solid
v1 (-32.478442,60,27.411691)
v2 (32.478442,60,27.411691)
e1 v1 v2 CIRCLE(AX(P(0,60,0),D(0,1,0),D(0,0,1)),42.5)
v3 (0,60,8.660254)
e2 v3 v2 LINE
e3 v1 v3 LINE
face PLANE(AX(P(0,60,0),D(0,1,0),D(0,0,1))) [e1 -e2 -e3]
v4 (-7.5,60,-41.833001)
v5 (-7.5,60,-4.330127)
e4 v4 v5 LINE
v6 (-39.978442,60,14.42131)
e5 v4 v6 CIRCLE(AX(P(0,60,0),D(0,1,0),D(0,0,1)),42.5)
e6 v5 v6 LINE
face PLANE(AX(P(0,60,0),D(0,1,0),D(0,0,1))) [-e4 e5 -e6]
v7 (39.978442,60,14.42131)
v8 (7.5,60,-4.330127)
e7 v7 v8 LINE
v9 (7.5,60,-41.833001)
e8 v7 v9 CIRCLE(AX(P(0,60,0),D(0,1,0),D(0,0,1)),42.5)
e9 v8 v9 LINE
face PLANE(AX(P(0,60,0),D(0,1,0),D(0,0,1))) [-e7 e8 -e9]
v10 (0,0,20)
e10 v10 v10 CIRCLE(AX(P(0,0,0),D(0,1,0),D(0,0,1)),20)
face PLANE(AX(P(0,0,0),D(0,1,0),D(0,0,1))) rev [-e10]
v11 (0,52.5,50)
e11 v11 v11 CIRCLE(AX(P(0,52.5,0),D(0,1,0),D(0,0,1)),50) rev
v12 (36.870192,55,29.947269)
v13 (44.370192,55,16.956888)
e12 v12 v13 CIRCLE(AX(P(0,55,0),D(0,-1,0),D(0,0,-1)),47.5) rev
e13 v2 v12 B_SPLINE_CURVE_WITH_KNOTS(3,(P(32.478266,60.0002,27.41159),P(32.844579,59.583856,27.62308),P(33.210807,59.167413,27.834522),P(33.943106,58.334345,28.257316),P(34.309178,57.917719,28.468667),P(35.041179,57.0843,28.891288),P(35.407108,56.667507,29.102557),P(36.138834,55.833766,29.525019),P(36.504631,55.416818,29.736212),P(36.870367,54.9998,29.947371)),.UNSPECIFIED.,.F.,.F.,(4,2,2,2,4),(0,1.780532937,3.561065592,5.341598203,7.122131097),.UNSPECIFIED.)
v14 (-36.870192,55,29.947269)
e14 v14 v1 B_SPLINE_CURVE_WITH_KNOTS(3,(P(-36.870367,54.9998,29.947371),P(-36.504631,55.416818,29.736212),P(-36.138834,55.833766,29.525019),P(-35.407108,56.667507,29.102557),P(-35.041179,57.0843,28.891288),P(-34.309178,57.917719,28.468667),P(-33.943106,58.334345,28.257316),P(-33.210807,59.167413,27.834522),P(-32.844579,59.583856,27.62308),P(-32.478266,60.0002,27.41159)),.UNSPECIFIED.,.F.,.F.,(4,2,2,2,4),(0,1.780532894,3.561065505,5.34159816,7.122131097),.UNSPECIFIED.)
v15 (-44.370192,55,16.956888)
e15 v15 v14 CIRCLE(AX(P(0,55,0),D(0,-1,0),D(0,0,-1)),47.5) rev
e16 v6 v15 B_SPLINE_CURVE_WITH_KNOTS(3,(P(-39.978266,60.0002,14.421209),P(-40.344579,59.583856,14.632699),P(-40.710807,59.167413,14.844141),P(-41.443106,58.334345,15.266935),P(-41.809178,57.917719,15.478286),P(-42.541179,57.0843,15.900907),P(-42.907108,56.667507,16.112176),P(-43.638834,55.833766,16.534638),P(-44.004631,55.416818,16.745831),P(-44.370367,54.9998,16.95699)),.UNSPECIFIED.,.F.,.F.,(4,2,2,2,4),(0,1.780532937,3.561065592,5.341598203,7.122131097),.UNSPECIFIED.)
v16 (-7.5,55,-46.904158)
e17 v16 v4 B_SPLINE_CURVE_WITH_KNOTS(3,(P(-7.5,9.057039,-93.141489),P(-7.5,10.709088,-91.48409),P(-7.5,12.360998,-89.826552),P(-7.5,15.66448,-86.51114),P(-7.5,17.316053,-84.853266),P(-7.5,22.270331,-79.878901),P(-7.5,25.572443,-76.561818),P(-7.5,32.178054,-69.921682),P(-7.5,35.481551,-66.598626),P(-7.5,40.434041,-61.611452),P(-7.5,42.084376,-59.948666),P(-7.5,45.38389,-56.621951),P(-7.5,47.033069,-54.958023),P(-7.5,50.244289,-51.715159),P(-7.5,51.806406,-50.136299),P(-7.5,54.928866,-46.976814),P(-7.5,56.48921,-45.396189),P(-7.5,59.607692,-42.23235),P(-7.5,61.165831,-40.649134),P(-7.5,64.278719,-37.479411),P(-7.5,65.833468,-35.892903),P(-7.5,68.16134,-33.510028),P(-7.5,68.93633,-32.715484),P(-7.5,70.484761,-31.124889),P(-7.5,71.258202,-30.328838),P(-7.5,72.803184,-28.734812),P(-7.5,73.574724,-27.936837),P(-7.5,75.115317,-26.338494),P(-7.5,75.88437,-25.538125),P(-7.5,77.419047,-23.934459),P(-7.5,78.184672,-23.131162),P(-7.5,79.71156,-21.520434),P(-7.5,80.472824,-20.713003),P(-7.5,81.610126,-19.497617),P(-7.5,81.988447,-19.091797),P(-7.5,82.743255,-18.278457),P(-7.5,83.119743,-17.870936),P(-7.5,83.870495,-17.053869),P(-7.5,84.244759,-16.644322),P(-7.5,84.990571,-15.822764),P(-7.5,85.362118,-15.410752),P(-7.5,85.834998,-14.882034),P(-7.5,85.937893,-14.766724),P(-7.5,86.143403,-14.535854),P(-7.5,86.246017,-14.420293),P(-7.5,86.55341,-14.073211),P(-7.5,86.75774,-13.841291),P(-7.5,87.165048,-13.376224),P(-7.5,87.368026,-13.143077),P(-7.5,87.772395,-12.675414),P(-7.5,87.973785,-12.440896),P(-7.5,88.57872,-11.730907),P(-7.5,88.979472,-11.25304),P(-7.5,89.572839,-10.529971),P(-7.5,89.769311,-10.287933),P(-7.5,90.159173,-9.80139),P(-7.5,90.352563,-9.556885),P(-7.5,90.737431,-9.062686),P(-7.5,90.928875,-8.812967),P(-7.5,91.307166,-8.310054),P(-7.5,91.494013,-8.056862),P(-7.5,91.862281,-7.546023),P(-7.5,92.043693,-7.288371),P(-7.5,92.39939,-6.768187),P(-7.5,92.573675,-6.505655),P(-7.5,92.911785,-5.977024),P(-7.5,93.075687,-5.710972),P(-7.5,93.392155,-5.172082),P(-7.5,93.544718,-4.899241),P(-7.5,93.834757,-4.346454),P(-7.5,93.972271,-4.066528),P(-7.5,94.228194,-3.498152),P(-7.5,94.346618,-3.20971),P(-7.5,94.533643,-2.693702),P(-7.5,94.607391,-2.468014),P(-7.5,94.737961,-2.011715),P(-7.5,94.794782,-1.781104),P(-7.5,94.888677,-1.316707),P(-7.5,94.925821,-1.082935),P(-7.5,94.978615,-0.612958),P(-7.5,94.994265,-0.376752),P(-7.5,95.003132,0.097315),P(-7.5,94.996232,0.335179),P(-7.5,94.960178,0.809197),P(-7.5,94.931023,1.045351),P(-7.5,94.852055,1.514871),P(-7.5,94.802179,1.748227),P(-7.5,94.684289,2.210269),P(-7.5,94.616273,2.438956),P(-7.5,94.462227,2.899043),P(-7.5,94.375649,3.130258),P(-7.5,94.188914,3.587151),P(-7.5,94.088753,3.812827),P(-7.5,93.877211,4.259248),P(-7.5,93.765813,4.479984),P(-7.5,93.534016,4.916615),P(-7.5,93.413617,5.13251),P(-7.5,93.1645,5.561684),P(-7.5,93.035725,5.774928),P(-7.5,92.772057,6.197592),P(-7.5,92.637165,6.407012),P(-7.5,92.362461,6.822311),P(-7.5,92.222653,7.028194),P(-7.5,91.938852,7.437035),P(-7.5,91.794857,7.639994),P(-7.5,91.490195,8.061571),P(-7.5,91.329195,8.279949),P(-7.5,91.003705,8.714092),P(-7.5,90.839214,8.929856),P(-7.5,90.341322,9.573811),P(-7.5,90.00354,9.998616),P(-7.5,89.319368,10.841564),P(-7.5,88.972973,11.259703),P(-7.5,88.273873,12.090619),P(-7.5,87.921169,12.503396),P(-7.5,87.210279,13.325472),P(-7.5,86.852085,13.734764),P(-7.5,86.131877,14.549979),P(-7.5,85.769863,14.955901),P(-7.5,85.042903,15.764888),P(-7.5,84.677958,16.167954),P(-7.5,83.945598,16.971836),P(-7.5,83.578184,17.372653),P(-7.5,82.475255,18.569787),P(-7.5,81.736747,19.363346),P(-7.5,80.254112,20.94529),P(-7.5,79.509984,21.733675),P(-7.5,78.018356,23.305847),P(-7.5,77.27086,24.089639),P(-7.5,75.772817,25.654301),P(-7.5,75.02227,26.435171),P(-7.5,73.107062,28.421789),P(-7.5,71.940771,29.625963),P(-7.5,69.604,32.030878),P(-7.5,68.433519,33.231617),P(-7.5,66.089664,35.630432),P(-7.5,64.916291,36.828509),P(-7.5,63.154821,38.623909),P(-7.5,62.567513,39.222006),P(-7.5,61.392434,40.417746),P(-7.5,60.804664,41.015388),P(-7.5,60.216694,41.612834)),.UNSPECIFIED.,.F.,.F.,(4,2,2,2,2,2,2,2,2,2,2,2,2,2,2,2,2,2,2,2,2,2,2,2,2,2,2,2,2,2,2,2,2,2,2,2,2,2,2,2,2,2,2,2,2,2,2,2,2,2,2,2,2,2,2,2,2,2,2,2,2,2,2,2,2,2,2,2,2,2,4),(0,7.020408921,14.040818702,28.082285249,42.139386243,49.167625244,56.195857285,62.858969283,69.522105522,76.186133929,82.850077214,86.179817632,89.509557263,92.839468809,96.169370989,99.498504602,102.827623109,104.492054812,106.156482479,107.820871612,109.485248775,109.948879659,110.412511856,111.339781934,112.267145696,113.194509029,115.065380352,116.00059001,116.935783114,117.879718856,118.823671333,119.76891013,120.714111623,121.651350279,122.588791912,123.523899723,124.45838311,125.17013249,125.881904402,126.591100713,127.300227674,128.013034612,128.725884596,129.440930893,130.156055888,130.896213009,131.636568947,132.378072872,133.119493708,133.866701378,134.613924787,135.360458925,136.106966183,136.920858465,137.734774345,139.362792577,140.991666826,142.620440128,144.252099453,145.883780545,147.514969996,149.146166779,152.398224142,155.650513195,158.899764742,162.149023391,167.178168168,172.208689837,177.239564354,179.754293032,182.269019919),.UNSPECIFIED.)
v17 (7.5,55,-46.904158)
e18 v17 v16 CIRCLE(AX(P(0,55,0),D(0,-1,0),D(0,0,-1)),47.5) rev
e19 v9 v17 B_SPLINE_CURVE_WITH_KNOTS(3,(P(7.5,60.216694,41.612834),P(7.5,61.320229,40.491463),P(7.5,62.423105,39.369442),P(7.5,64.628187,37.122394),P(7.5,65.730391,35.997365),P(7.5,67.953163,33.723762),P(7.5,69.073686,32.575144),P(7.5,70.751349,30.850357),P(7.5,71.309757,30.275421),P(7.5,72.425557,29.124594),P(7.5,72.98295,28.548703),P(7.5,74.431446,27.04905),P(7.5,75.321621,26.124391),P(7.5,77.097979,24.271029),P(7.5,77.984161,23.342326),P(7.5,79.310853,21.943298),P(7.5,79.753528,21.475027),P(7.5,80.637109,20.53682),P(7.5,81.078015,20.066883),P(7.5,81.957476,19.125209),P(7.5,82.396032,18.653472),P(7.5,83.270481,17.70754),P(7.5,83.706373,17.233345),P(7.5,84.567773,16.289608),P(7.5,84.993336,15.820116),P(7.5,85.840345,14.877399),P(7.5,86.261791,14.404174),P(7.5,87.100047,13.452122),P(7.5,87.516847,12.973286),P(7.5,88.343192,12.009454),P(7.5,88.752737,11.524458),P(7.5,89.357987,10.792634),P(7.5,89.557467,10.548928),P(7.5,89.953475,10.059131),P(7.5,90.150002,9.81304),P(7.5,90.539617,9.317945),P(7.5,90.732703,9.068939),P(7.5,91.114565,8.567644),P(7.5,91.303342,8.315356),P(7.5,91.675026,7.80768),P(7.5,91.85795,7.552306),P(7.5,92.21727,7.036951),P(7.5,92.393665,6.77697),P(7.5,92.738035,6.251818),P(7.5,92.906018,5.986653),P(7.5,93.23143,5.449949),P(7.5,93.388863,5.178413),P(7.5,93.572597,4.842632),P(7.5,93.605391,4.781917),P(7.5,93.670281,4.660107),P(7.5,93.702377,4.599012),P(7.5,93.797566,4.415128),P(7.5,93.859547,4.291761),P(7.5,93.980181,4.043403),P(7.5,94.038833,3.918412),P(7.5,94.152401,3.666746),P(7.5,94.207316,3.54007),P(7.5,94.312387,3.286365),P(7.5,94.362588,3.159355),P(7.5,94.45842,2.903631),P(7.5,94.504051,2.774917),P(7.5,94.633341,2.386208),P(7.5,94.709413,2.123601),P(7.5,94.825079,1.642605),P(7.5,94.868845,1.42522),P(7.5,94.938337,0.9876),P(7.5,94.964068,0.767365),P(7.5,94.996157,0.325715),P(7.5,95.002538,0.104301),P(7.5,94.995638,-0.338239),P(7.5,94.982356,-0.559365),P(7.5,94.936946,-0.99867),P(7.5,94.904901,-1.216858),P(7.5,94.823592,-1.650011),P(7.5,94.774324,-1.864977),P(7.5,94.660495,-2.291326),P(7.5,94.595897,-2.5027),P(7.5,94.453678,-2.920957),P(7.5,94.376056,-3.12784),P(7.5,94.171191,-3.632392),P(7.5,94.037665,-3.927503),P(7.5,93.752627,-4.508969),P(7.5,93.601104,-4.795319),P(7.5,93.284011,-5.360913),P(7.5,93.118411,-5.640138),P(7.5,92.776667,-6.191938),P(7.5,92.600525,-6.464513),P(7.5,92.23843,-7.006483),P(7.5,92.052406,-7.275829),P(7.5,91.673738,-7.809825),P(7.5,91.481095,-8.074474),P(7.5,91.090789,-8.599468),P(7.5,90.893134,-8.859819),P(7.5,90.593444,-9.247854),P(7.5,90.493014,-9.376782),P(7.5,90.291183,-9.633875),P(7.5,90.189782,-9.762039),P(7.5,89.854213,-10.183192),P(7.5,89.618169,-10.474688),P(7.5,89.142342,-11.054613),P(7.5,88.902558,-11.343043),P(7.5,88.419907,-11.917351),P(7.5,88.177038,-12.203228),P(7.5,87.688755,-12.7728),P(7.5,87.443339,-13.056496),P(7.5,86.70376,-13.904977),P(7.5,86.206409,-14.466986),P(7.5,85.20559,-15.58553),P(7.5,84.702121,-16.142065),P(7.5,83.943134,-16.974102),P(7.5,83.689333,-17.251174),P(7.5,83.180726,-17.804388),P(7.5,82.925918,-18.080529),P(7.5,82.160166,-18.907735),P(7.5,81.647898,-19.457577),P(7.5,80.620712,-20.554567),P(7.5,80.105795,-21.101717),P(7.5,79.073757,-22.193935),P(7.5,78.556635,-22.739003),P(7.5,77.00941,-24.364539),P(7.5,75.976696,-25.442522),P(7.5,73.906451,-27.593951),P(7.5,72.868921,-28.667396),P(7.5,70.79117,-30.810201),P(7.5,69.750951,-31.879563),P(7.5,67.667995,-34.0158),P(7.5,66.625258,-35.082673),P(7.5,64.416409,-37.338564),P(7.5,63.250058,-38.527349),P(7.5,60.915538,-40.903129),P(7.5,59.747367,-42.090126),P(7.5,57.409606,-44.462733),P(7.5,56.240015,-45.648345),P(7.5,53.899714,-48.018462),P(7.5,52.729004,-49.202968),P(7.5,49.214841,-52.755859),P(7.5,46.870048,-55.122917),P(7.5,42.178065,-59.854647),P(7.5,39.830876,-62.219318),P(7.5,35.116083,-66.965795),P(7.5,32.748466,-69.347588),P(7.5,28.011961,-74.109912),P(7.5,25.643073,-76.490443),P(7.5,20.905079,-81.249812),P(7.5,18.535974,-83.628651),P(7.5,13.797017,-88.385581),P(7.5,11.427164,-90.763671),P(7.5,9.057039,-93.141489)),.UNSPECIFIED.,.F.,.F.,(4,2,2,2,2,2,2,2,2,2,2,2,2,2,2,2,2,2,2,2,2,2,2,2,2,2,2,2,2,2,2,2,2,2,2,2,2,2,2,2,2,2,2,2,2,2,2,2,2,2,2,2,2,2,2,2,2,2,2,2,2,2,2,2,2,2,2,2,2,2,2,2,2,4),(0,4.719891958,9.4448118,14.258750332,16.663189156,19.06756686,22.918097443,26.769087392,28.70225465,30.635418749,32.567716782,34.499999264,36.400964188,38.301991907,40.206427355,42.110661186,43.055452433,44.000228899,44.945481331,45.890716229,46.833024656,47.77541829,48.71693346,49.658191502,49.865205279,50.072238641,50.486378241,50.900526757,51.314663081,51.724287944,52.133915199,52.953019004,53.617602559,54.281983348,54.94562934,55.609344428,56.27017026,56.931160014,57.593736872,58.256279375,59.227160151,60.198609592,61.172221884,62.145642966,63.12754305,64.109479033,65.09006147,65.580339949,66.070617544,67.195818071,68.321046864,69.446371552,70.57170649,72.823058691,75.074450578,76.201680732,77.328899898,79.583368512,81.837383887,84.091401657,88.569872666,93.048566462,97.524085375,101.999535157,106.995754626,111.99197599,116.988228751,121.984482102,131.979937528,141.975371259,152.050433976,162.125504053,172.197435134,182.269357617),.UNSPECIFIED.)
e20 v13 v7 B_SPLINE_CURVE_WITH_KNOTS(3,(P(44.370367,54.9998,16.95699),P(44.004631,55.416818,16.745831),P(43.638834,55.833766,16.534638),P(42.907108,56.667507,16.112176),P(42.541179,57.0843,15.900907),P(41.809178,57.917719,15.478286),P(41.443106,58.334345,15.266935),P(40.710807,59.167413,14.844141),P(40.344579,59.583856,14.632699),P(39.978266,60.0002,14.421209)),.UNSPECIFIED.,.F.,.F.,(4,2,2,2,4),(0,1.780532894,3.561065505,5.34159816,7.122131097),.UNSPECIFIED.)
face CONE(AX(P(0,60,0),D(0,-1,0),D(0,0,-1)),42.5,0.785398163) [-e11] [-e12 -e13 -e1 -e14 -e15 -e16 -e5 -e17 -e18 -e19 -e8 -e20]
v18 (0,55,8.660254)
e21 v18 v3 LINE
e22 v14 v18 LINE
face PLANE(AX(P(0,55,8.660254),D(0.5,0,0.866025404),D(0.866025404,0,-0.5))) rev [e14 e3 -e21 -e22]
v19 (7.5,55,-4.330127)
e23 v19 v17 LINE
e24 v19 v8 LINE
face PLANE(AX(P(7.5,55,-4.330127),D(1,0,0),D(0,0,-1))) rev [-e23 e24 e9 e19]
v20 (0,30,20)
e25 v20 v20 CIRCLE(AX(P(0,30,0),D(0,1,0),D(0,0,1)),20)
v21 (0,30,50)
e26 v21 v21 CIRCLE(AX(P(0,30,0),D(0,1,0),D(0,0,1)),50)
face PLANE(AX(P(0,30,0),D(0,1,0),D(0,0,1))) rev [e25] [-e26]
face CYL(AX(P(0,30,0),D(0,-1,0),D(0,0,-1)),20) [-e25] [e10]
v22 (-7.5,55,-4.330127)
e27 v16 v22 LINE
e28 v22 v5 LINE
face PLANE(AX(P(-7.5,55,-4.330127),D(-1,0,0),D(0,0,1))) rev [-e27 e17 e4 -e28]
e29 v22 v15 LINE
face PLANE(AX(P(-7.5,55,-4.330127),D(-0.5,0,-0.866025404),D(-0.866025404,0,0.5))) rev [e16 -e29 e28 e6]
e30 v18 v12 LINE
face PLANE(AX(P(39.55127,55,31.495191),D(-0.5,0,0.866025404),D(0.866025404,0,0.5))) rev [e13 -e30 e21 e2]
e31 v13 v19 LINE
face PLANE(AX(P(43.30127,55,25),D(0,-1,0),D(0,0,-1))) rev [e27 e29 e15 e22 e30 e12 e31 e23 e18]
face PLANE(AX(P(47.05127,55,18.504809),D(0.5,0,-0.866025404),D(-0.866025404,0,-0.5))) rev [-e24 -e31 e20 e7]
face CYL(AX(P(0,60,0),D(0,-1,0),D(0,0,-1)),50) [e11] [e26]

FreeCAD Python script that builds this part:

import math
import FreeCAD as App
import Part
import Sketcher
Q = App.Units.Quantity


def edges_at(feature, points):
    """Names of the edges that pass closest to the given points."""
    edges = feature.Shape.Edges
    near = lambda p: min(range(len(edges)), key=lambda i: edges[i].distToShape(Part.Vertex(*p))[0])
    return sorted({f"Edge{near(p) + 1}" for p in points})

doc = App.newDocument("Part")
body = doc.addObject("PartDesign::Body", "Body")

sketch1 = doc.addObject("Sketcher::SketchObject", "Sketch")
body.addObject(sketch1)
sketch1.AttachmentSupport = (doc.XZ_Plane, [""])
sketch1.MapMode = "FlatFace"
sketch1.addGeometry(Part.Circle(App.Vector(0, 0, 0), App.Vector(0, 0, 1), 20), False)
sketch1.addConstraint([
    Sketcher.Constraint("Coincident", 0, 3, -1, 1),
    Sketcher.Constraint("Diameter", 0, Q("40 mm")),
])
pad1 = doc.addObject("PartDesign::Pad", "Pad")
body.addObject(pad1)
pad1.Profile = sketch1
pad1.Length = 30
pad1.Reversed = True

sketch2 = doc.addObject("Sketcher::SketchObject", "Sketch001")
body.addObject(sketch2)
sketch2.AttachmentSupport = (doc.XZ_Plane, [""])
sketch2.MapMode = "FlatFace"
sketch2.AttachmentOffset = App.Placement(App.Vector(0, 0, -30), App.Rotation())
sketch2.addGeometry(Part.Circle(App.Vector(0, 0, 0), App.Vector(0, 0, 1), 50), False)
sketch2.addConstraint([
    Sketcher.Constraint("Coincident", 0, 3, -1, 1),
    Sketcher.Constraint("Diameter", 0, Q("100 mm")),
])
pad2 = doc.addObject("PartDesign::Pad", "Pad001")
body.addObject(pad2)
pad2.Profile = sketch2
pad2.Length = 30
pad2.Reversed = True
doc.recompute()

chamfer = doc.addObject("PartDesign::Chamfer", "Chamfer")
body.addObject(chamfer)
chamfer.Base = (pad2, edges_at(pad2, [(-50, 60, 0)]))
chamfer.Size = 7.5

sketch3 = doc.addObject("Sketcher::SketchObject", "Sketch002")
body.addObject(sketch3)
sketch3.AttachmentSupport = (doc.XZ_Plane, [""])
sketch3.MapMode = "FlatFace"
sketch3.AttachmentOffset = App.Placement(App.Vector(0, 0, -60), App.Rotation())
sketch3.addGeometry([
    Part.LineSegment(App.Vector(47, 19, 0), App.Vector(8, -4, 0)),
    Part.LineSegment(App.Vector(8, -4, 0), App.Vector(8, -50, 0)),
    Part.ArcOfCircle(Part.Circle(App.Vector(0, -50, 0), App.Vector(0, 0, 1), 8), math.radians(180), math.radians(360)),
    Part.LineSegment(App.Vector(-8, -50, 0), App.Vector(-8, -4, 0)),
    Part.LineSegment(App.Vector(-8, -4, 0), App.Vector(-47, 19, 0)),
    Part.ArcOfCircle(Part.Circle(App.Vector(-43, 25, 0), App.Vector(0, 0, 1), 8), math.radians(60), math.radians(240)),
    Part.LineSegment(App.Vector(-40, 31, 0), App.Vector(0, 9, 0)),
    Part.LineSegment(App.Vector(0, 9, 0), App.Vector(40, 31, 0)),
    Part.ArcOfCircle(Part.Circle(App.Vector(43, 25, 0), App.Vector(0, 0, 1), 8), math.radians(-60), math.radians(120)),
], False)
sketch3.addConstraint([
    Sketcher.Constraint("Coincident", 0, 2, 1, 1),
    Sketcher.Constraint("Tangent", 1, 2, 2, 2),
    Sketcher.Constraint("Tangent", 2, 1, 3, 1),
    Sketcher.Constraint("Coincident", 3, 2, 4, 1),
    Sketcher.Constraint("Tangent", 4, 2, 5, 2),
    Sketcher.Constraint("Tangent", 5, 1, 6, 1),
    Sketcher.Constraint("Coincident", 6, 2, 7, 1),
    Sketcher.Constraint("Tangent", 7, 2, 8, 2),
    Sketcher.Constraint("Tangent", 8, 1, 0, 1),
    Sketcher.Constraint("Vertical", 1),
    Sketcher.Constraint("Vertical", 3),
    Sketcher.Constraint("Equal", 2, 5),
    Sketcher.Constraint("Equal", 5, 8),
    Sketcher.Constraint("Symmetric", 5, 3, 8, 3, -2),
    Sketcher.Constraint("Symmetric", 0, 2, 3, 2, -2),
    Sketcher.Constraint("PointOnObject", 6, 2, -2),
    Sketcher.Constraint("Parallel", 4, 6),
    Sketcher.Constraint("Equal", 4, 6),
    Sketcher.Constraint("Radius", 2, Q("7.5 mm")),
    Sketcher.Constraint("DistanceY", 2, 3, -1, 1, Q("50 mm")),
    Sketcher.Constraint("DistanceY", -1, 1, 5, 3, Q("25 mm")),
    Sketcher.Constraint("DistanceY", 1, 2, 1, 1, Q("45.669873 mm")),
])
pocket1 = doc.addObject("PartDesign::Pocket", "Pocket")
body.addObject(pocket1)
pocket1.Profile = sketch3
pocket1.Length = 5
pocket1.Reversed = True

doc.recompute()
